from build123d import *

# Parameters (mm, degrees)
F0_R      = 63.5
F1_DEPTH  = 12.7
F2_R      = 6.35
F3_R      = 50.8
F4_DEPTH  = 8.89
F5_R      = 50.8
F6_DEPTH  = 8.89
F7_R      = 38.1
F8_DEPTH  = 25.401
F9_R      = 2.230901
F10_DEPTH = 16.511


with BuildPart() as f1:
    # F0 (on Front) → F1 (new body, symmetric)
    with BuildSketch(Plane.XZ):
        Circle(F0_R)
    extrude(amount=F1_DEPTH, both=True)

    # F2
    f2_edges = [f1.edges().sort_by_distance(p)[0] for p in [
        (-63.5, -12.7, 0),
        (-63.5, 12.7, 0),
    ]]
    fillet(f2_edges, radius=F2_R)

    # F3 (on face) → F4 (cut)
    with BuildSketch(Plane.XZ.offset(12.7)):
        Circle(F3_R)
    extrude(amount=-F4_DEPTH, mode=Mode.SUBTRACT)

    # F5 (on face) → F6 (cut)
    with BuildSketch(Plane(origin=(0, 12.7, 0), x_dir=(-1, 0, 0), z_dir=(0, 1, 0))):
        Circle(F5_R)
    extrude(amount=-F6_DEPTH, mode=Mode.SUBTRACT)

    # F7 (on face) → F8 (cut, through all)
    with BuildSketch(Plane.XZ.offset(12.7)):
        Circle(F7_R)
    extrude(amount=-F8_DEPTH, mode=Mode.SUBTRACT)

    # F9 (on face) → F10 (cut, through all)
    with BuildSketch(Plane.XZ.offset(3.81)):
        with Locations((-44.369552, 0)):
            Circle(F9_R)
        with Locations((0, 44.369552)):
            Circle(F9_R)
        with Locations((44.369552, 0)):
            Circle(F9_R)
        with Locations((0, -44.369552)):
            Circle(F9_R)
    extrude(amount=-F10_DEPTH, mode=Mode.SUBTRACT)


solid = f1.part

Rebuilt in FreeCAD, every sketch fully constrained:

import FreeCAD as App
import Part
import Sketcher
Q = App.Units.Quantity


def edges_at(feature, points):
    """Names of the edges that pass closest to the given points."""
    edges = feature.Shape.Edges
    near = lambda p: min(range(len(edges)), key=lambda i: edges[i].distToShape(Part.Vertex(*p))[0])
    return sorted({f"Edge{near(p) + 1}" for p in points})

doc = App.newDocument("Part")
params = doc.addObject("Spreadsheet::Sheet", "Params")
for row, (alias, value) in enumerate([
    ("sketch1_diameter", "5 in"),
    ("pad1_length", "1 in"),
    ("fillet_radius", "0.25 in"),
    ("sketch2_diameter", "4 in"),
    ("pocket1_length", "0.35 in"),
    ("sketch3_diameter", "4 in"),
    ("pocket2_length", "0.35 in"),
    ("sketch4_diameter", "3 in"),
], start=1):
    params.set(f"A{row}", alias)
    params.set(f"B{row}", "=" + value)
    params.setAlias(f"B{row}", alias)

body = doc.addObject("PartDesign::Body", "Body")

sketch1 = body.newObject("Sketcher::SketchObject", "Sketch")
sketch1.AttachmentSupport = (doc.getObject("XZ_Plane"), [""])
sketch1.MapMode = "FlatFace"
sketch1.addGeometry(Part.Circle(App.Vector(0, 0, 0), App.Vector(0, 0, 1), 64), False)
sketch1.addConstraint([
    Sketcher.Constraint("Coincident", 0, 3, -1, 1),
    Sketcher.Constraint("Diameter", 0, Q("5 in")),
])
sketch1.setExpression("Constraints[1]", "Params.sketch1_diameter")
pad1 = body.newObject("PartDesign::Pad", "Pad")
pad1.Profile = sketch1
pad1.setExpression("Length", "Params.pad1_length")
pad1.Midplane = True
doc.recompute()

fillet = body.newObject("PartDesign::Fillet", "Fillet")
fillet.Base = (pad1, edges_at(pad1, [(-63.5, -12.7, 0), (-63.5, 12.7, 0)]))
fillet.setExpression("Radius", "Params.fillet_radius")

sketch2 = body.newObject("Sketcher::SketchObject", "Sketch001")
sketch2.AttachmentSupport = (doc.getObject("XZ_Plane"), [""])
sketch2.MapMode = "FlatFace"
sketch2.AttachmentOffset = App.Placement(App.Vector(0, 0, 0.5 * 25.4), App.Rotation())
sketch2.addGeometry(Part.Circle(App.Vector(0, 0, 0), App.Vector(0, 0, 1), 51), False)
sketch2.addConstraint([
    Sketcher.Constraint("Coincident", 0, 3, -1, 1),
    Sketcher.Constraint("Diameter", 0, Q("4 in")),
])
sketch2.setExpression("Constraints[1]", "Params.sketch2_diameter")
pocket1 = body.newObject("PartDesign::Pocket", "Pocket")
pocket1.Profile = sketch2
pocket1.setExpression("Length", "Params.pocket1_length")

sketch3 = body.newObject("Sketcher::SketchObject", "Sketch002")
sketch3.AttachmentSupport = (doc.getObject("XZ_Plane"), [""])
sketch3.MapMode = "FlatFace"
sketch3.AttachmentOffset = App.Placement(App.Vector(0, 0, -0.5 * 25.4), App.Rotation())
sketch3.addGeometry(Part.Circle(App.Vector(0, 0, 0), App.Vector(0, 0, 1), 51), False)
sketch3.addConstraint([
    Sketcher.Constraint("Coincident", 0, 3, -1, 1),
    Sketcher.Constraint("Diameter", 0, Q("4 in")),
])
sketch3.setExpression("Constraints[1]", "Params.sketch3_diameter")
pocket2 = body.newObject("PartDesign::Pocket", "Pocket001")
pocket2.Profile = sketch3
pocket2.setExpression("Length", "Params.pocket2_length")
pocket2.Reversed = True

sketch4 = body.newObject("Sketcher::SketchObject", "Sketch003")
sketch4.AttachmentSupport = (doc.getObject("XZ_Plane"), [""])
sketch4.MapMode = "FlatFace"
sketch4.AttachmentOffset = App.Placement(App.Vector(0, 0, 0.5 * 25.4), App.Rotation())
sketch4.addGeometry(Part.Circle(App.Vector(0, 0, 0), App.Vector(0, 0, 1), 38), False)
sketch4.addConstraint([
    Sketcher.Constraint("Coincident", 0, 3, -1, 1),
    Sketcher.Constraint("Diameter", 0, Q("3 in")),
])
sketch4.setExpression("Constraints[1]", "Params.sketch4_diameter")
pocket3 = body.newObject("PartDesign::Pocket", "Pocket002")
pocket3.Profile = sketch4
pocket3.Type = "ThroughAll"

sketch5 = body.newObject("Sketcher::SketchObject", "Sketch004")
sketch5.AttachmentSupport = (doc.getObject("XZ_Plane"), [""])
sketch5.MapMode = "FlatFace"
sketch5.AttachmentOffset = App.Placement(App.Vector(0, 0, 0.15 * 25.4), App.Rotation())
sketch5.addGeometry([
    Part.Circle(App.Vector(-44.4, 0, 0), App.Vector(0, 0, 1), 2.2),
    Part.Circle(App.Vector(0, 44.4, 0), App.Vector(0, 0, 1), 2.2),
    Part.Circle(App.Vector(44.4, 0, 0), App.Vector(0, 0, 1), 2.2),
    Part.Circle(App.Vector(0, -44.4, 0), App.Vector(0, 0, 1), 2.2),
], False)
sketch5.addConstraint([
    Sketcher.Constraint("Equal", 0, 1),
    Sketcher.Constraint("Equal", 1, 2),
    Sketcher.Constraint("Equal", 2, 3),
    Sketcher.Constraint("Symmetric", 0, 3, 2, 3, -1, 1),
    Sketcher.Constraint("Symmetric", 1, 3, 3, 3, -1, 1),
    Sketcher.Constraint("PointOnObject", 0, 3, -1),
    Sketcher.Constraint("PointOnObject", 1, 3, -2),
    Sketcher.Constraint("Diameter", 0, Q("4.461802 mm")),
    Sketcher.Constraint("DistanceX", 0, 3, -1, 1, Q("44.369552 mm")),
    Sketcher.Constraint("DistanceY", -1, 1, 1, 3, Q("44.369552 mm")),
])
pocket4 = body.newObject("PartDesign::Pocket", "Pocket003")
pocket4.Profile = sketch5
pocket4.Type = "ThroughAll"

doc.recompute()
